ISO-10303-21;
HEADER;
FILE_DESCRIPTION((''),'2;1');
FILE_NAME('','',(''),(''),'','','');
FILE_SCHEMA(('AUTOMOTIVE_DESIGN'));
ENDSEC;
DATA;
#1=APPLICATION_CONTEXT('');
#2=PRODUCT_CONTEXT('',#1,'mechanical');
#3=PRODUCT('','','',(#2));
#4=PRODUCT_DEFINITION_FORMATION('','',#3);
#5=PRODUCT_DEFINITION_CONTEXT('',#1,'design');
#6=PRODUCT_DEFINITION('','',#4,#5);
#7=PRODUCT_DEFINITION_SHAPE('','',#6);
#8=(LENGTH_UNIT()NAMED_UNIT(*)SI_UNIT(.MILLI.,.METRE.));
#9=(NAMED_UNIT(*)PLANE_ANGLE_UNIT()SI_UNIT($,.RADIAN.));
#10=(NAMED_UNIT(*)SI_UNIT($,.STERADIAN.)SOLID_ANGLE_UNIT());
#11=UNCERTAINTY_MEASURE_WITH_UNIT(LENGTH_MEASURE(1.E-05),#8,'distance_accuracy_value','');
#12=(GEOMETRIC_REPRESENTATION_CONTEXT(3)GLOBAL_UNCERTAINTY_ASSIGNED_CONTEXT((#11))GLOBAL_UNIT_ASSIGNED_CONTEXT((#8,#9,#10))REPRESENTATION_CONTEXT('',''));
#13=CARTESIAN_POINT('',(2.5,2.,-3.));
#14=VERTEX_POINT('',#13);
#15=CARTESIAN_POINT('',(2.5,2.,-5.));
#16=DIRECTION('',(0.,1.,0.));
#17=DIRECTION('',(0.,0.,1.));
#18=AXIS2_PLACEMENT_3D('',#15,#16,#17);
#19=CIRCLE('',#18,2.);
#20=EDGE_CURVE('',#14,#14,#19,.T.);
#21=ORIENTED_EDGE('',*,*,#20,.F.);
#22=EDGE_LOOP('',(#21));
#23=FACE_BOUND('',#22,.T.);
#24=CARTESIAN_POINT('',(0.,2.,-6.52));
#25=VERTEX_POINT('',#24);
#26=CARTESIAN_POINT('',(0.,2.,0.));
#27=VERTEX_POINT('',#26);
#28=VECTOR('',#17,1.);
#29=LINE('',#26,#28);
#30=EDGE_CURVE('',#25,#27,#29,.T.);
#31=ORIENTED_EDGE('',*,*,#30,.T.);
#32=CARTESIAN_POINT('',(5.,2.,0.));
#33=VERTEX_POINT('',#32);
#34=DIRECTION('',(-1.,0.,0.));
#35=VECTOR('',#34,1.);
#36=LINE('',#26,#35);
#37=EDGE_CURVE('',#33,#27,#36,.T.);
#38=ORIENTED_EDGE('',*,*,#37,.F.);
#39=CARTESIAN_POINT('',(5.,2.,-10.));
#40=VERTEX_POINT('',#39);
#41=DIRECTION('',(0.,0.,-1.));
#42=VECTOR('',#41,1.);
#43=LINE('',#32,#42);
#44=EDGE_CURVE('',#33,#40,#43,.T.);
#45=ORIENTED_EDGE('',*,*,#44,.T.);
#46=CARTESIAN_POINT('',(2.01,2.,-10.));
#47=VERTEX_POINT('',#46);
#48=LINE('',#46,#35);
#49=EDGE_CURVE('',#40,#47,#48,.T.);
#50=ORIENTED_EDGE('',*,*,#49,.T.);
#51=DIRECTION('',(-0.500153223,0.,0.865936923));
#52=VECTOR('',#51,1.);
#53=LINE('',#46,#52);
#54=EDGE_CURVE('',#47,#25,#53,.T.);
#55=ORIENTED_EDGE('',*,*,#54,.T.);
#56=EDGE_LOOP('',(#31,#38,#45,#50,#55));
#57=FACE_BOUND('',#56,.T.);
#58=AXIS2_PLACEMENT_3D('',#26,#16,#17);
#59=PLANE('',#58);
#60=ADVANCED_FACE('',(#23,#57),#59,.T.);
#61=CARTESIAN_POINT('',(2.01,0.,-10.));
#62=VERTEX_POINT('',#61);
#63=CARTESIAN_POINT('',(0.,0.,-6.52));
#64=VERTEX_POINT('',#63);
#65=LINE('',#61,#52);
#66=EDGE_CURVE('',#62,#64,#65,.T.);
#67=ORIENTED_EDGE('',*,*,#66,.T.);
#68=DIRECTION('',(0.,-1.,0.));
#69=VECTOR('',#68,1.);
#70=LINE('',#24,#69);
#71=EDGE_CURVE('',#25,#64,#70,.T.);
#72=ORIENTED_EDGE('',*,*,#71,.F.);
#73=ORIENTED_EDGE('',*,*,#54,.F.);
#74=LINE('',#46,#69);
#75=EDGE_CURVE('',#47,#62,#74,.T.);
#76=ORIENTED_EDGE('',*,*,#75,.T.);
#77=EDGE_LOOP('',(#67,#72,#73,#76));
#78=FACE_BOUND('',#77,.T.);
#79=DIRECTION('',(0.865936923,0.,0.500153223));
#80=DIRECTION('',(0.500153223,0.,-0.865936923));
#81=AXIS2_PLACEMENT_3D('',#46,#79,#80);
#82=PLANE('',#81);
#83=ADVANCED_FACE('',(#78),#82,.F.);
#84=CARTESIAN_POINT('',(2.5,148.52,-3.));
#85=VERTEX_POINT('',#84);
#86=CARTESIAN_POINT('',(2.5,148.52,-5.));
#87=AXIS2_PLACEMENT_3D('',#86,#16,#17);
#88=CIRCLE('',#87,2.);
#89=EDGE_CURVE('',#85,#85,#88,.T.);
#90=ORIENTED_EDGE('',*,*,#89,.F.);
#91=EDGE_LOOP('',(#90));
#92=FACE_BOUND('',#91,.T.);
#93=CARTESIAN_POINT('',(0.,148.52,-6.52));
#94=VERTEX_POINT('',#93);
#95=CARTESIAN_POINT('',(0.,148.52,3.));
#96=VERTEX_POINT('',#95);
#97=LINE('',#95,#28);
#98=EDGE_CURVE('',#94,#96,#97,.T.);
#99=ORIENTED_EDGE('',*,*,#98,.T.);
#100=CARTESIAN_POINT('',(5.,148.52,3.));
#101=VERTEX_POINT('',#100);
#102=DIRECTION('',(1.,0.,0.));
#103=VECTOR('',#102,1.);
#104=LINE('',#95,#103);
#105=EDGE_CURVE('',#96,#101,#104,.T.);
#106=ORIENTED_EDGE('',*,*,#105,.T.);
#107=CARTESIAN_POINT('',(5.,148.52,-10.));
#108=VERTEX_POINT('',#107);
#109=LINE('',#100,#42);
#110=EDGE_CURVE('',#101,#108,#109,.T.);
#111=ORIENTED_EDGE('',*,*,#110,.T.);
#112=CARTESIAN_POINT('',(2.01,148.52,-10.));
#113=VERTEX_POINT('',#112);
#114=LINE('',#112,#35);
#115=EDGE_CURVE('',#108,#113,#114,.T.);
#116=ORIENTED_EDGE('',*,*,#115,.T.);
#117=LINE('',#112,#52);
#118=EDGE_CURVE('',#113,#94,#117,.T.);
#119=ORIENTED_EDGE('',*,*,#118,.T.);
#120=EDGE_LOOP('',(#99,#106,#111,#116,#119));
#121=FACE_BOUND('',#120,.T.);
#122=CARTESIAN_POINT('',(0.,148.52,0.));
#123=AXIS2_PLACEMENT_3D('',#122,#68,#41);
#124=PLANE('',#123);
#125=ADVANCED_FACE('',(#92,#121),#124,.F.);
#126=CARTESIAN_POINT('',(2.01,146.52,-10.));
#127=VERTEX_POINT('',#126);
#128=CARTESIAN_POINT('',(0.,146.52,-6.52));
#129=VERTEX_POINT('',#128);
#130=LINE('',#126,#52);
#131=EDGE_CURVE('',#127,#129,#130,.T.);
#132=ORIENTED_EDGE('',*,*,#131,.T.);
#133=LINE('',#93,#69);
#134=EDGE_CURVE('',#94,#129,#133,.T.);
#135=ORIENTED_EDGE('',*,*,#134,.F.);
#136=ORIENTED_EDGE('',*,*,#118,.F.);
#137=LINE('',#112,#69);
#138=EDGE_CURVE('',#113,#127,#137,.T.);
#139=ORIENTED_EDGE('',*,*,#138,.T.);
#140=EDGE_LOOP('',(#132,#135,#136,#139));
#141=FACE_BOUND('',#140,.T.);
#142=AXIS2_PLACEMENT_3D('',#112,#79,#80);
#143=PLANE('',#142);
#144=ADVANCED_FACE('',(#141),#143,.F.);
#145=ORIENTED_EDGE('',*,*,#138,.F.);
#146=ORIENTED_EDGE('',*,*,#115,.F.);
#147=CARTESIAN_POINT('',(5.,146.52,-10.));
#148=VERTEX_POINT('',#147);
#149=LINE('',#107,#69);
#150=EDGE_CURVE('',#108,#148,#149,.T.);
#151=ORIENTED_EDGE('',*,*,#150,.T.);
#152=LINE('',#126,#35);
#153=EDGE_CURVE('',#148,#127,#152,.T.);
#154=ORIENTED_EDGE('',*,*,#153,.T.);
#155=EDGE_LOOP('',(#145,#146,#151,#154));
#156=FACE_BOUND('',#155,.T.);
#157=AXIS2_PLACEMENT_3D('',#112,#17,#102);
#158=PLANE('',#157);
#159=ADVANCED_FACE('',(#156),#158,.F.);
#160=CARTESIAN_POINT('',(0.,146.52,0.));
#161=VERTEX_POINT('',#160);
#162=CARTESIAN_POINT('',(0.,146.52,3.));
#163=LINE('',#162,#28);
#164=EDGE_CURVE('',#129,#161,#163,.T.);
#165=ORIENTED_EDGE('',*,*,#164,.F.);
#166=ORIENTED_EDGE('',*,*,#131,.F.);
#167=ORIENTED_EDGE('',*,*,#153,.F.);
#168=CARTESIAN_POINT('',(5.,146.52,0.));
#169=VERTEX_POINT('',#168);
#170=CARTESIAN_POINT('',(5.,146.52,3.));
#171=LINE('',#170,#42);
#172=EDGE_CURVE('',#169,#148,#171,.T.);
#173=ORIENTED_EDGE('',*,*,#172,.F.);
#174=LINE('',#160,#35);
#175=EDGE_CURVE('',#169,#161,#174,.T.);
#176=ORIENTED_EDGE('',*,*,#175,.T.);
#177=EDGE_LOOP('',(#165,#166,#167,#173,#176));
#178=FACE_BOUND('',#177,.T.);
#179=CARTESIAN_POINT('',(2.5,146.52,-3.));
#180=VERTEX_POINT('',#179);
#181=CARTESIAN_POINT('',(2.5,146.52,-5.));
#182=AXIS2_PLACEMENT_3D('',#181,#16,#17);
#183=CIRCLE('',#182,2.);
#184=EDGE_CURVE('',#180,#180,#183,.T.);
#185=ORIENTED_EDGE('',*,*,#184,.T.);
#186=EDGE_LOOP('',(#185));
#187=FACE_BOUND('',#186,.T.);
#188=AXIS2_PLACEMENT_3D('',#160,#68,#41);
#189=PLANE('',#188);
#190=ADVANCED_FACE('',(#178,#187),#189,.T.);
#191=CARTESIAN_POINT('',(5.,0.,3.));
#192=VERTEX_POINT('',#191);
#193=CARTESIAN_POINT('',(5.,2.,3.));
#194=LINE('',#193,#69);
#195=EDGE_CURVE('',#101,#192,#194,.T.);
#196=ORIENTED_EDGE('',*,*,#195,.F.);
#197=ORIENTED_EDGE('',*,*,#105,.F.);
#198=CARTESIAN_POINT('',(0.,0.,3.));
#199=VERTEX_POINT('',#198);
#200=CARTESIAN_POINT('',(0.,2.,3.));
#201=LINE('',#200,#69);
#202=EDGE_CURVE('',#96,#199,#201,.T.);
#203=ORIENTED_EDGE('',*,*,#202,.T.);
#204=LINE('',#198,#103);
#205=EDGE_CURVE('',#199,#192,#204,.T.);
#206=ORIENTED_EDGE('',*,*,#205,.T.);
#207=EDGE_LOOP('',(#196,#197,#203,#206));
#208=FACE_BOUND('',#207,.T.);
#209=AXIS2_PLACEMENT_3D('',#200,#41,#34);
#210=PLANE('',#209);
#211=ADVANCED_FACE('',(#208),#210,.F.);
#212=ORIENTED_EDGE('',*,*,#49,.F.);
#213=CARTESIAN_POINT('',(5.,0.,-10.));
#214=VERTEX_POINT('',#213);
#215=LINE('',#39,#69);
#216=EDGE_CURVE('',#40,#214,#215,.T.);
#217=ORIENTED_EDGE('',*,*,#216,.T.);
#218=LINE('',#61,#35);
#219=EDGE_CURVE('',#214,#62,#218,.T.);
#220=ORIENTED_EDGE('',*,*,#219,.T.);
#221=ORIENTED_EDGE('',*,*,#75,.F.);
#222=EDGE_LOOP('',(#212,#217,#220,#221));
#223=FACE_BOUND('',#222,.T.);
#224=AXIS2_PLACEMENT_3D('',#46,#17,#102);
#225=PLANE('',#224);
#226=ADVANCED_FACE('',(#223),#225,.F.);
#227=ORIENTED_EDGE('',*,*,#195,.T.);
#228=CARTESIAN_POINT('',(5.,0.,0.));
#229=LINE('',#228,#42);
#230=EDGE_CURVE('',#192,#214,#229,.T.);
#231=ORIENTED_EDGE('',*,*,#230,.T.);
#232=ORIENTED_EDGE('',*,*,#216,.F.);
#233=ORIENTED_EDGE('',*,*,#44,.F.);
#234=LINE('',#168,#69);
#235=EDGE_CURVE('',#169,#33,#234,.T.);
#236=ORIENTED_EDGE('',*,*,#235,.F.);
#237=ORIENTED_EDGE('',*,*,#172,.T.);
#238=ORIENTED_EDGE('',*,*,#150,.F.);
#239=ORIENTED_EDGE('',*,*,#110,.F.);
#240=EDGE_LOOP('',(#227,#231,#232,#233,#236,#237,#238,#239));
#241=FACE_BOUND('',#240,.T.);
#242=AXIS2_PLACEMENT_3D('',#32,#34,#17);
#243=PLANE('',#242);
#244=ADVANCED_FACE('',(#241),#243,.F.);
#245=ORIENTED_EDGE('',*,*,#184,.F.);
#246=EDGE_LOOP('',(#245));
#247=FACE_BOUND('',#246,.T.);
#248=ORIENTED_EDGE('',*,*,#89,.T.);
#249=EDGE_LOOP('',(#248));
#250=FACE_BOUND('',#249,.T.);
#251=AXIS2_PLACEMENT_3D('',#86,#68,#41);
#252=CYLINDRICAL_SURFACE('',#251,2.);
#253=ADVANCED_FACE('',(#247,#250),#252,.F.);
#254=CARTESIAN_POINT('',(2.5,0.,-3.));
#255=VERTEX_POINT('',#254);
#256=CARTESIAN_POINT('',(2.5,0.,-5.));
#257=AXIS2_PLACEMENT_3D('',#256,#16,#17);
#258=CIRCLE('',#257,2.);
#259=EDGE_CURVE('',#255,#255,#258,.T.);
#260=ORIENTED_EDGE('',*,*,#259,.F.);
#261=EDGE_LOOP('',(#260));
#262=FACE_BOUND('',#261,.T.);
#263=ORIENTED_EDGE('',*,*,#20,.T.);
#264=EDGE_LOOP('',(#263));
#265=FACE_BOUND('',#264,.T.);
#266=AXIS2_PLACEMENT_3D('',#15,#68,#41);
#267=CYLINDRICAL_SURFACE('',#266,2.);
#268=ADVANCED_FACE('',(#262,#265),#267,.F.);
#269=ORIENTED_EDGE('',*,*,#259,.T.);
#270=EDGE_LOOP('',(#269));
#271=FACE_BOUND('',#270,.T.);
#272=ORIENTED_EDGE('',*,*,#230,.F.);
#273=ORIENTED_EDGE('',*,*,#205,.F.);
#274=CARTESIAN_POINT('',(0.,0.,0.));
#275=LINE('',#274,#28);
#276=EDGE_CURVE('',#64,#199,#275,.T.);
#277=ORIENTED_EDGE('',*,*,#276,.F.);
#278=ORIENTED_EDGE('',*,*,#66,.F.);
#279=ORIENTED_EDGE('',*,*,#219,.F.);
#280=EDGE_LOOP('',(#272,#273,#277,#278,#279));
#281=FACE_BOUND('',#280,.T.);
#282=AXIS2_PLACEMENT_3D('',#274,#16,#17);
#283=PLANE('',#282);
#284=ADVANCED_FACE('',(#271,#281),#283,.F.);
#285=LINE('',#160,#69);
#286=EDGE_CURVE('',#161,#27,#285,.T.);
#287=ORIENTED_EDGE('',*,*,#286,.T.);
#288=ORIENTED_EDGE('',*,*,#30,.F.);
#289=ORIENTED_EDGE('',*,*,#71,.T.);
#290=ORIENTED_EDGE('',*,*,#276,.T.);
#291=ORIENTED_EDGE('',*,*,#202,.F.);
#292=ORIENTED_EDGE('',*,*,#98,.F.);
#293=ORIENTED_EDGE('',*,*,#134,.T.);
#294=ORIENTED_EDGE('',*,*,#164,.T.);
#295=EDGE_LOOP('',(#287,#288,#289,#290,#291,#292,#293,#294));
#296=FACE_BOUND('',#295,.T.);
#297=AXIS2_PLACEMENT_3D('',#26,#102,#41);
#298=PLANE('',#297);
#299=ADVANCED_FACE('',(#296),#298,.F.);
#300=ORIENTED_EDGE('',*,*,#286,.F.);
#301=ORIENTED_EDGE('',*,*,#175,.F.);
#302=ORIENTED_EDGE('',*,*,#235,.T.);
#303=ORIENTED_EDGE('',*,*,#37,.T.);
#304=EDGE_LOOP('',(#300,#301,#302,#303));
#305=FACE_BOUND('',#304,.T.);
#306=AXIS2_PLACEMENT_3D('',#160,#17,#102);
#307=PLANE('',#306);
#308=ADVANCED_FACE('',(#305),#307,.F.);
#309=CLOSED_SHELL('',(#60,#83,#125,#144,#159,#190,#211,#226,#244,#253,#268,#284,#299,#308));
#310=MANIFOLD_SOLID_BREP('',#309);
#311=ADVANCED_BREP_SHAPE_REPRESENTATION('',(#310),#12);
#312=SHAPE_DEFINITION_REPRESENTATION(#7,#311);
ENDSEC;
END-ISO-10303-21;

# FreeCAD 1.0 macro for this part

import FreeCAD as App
import Part
import Sketcher

V = App.Vector

doc = App.newDocument("Part")
params = doc.addObject("Spreadsheet::Sheet", "Params")
for row, (alias, value) in enumerate([
    ("sketch1_diameter", "4 mm"),
    ("sketch1_width", "5 mm"),
    ("sketch1_height", "13 mm"),
    ("sketch1_width2", "2.99 mm"),
    ("sketch1_height2", "9.52 mm"),
    ("pad1_length", "2 mm"),
    ("sketch2_width", "5 mm"),
    ("sketch2_height", "3 mm"),
    ("pad2_length", "144.52 mm"),
    ("sketch3_diameter", "4 mm"),
    ("sketch3_width", "5 mm"),
    ("sketch3_height", "13 mm"),
    ("sketch3_width2", "2.99 mm"),
    ("sketch3_height2", "9.52 mm"),
    ("pad3_length", "2 mm"),
], start=1):
    params.set(f"A{row}", alias)
    params.set(f"B{row}", "=" + value)
    params.setAlias(f"B{row}", alias)

body = doc.addObject("PartDesign::Body", "Body")

# Sketch on XZ plane
sketch1 = doc.addObject("Sketcher::SketchObject", "Sketch")
body.addObject(sketch1)
sketch1.AttachmentSupport = (doc.XZ_Plane, [""])
sketch1.MapMode = "FlatFace"
sketch1.addGeometry(Part.LineSegment(V(2, -10, 0), V(0, -6.5, 0)), False)
sketch1.addGeometry(Part.LineSegment(V(0, -6.5, 0), V(0, 3, 0)), False)
sketch1.addGeometry(Part.LineSegment(V(0, 3, 0), V(5, 3, 0)), False)
sketch1.addGeometry(Part.LineSegment(V(5, 3, 0), V(5, -10, 0)), False)
sketch1.addGeometry(Part.LineSegment(V(5, -10, 0), V(2, -10, 0)), False)
sketch1.addGeometry(Part.Circle(V(2.5, -5, 0), V(0, 0, 1), 2), False)
sketch1.addConstraint(Sketcher.Constraint("Coincident", 0, 2, 1, 1))
sketch1.addConstraint(Sketcher.Constraint("Coincident", 1, 2, 2, 1))
sketch1.addConstraint(Sketcher.Constraint("Coincident", 2, 2, 3, 1))
sketch1.addConstraint(Sketcher.Constraint("Coincident", 3, 2, 4, 1))
sketch1.addConstraint(Sketcher.Constraint("Coincident", 4, 2, 0, 1))
sketch1.addConstraint(Sketcher.Constraint("Vertical", 1))
sketch1.addConstraint(Sketcher.Constraint("Horizontal", 2))
sketch1.addConstraint(Sketcher.Constraint("Vertical", 3))
sketch1.addConstraint(Sketcher.Constraint("Horizontal", 4))
sketch1.addConstraint(Sketcher.Constraint("PointOnObject", 0, 2, -2))
sketch1.addConstraint(Sketcher.Constraint("Diameter", 5, 4.0))
sketch1.addConstraint(Sketcher.Constraint("DistanceX", 2, 1, 2, 2, 5.0))
sketch1.addConstraint(Sketcher.Constraint("DistanceY", 3, 2, 3, 1, 13.0))
sketch1.addConstraint(Sketcher.Constraint("DistanceY", 5, 3, -1, 1, 5.0))
sketch1.addConstraint(Sketcher.Constraint("DistanceY", -1, 1, 1, 2, 3.0))
sketch1.addConstraint(Sketcher.Constraint("DistanceX", 4, 2, 4, 1, 2.99))
sketch1.addConstraint(Sketcher.Constraint("DistanceY", 1, 1, 1, 2, 9.52))
sketch1.addConstraint(Sketcher.Constraint("DistanceX", -1, 1, 5, 3, 2.5))
sketch1.setExpression("Constraints[10]", "Params.sketch1_diameter")
sketch1.setExpression("Constraints[11]", "Params.sketch1_width")
sketch1.setExpression("Constraints[12]", "Params.sketch1_height")
sketch1.setExpression("Constraints[15]", "Params.sketch1_width2")
sketch1.setExpression("Constraints[16]", "Params.sketch1_height2")
pad1 = doc.addObject("PartDesign::Pad", "Pad")
body.addObject(pad1)
pad1.Profile = sketch1
pad1.setExpression("Length", "Params.pad1_length")
pad1.Reversed = True

# Sketch on XZ plane
sketch2 = doc.addObject("Sketcher::SketchObject", "Sketch001")
body.addObject(sketch2)
sketch2.AttachmentSupport = (doc.XZ_Plane, [""])
sketch2.MapMode = "FlatFace"
sketch2.AttachmentOffset = App.Placement(V(0, 0, -2), App.Rotation())
sketch2.addGeometry(Part.LineSegment(V(0, 0, 0), V(0, 3, 0)), False)
sketch2.addGeometry(Part.LineSegment(V(0, 3, 0), V(5, 3, 0)), False)
sketch2.addGeometry(Part.LineSegment(V(5, 3, 0), V(5, 0, 0)), False)
sketch2.addGeometry(Part.LineSegment(V(5, 0, 0), V(0, 0, 0)), False)
sketch2.addConstraint(Sketcher.Constraint("Coincident", 0, 2, 1, 1))
sketch2.addConstraint(Sketcher.Constraint("Coincident", 1, 2, 2, 1))
sketch2.addConstraint(Sketcher.Constraint("Coincident", 2, 2, 3, 1))
sketch2.addConstraint(Sketcher.Constraint("Coincident", 3, 2, 0, 1))
sketch2.addConstraint(Sketcher.Constraint("Vertical", 0))
sketch2.addConstraint(Sketcher.Constraint("Horizontal", 1))
sketch2.addConstraint(Sketcher.Constraint("Vertical", 2))
sketch2.addConstraint(Sketcher.Constraint("Horizontal", 3))
sketch2.addConstraint(Sketcher.Constraint("Coincident", 3, 2, -1, 1))
sketch2.addConstraint(Sketcher.Constraint("DistanceX", 1, 1, 1, 2, 5.0))
sketch2.addConstraint(Sketcher.Constraint("DistanceY", 0, 1, 0, 2, 3.0))
sketch2.setExpression("Constraints[9]", "Params.sketch2_width")
sketch2.setExpression("Constraints[10]", "Params.sketch2_height")
pad2 = doc.addObject("PartDesign::Pad", "Pad001")
body.addObject(pad2)
pad2.Profile = sketch2
pad2.setExpression("Length", "Params.pad2_length")
pad2.Reversed = True

# Sketch on XZ plane
sketch3 = doc.addObject("Sketcher::SketchObject", "Sketch002")
body.addObject(sketch3)
sketch3.AttachmentSupport = (doc.XZ_Plane, [""])
sketch3.MapMode = "FlatFace"
sketch3.AttachmentOffset = App.Placement(V(0, 0, -146.52), App.Rotation())
sketch3.addGeometry(Part.LineSegment(V(2, -10, 0), V(0, -6.5, 0)), False)
sketch3.addGeometry(Part.LineSegment(V(0, -6.5, 0), V(0, 3, 0)), False)
sketch3.addGeometry(Part.LineSegment(V(0, 3, 0), V(5, 3, 0)), False)
sketch3.addGeometry(Part.LineSegment(V(5, 3, 0), V(5, -10, 0)), False)
sketch3.addGeometry(Part.LineSegment(V(5, -10, 0), V(2, -10, 0)), False)
sketch3.addGeometry(Part.Circle(V(2.5, -5, 0), V(0, 0, 1), 2), False)
sketch3.addConstraint(Sketcher.Constraint("Coincident", 0, 2, 1, 1))
sketch3.addConstraint(Sketcher.Constraint("Coincident", 1, 2, 2, 1))
sketch3.addConstraint(Sketcher.Constraint("Coincident", 2, 2, 3, 1))
sketch3.addConstraint(Sketcher.Constraint("Coincident", 3, 2, 4, 1))
sketch3.addConstraint(Sketcher.Constraint("Coincident", 4, 2, 0, 1))
sketch3.addConstraint(Sketcher.Constraint("Vertical", 1))
sketch3.addConstraint(Sketcher.Constraint("Horizontal", 2))
sketch3.addConstraint(Sketcher.Constraint("Vertical", 3))
sketch3.addConstraint(Sketcher.Constraint("Horizontal", 4))
sketch3.addConstraint(Sketcher.Constraint("PointOnObject", 0, 2, -2))
sketch3.addConstraint(Sketcher.Constraint("Diameter", 5, 4.0))
sketch3.addConstraint(Sketcher.Constraint("DistanceX", 2, 1, 2, 2, 5.0))
sketch3.addConstraint(Sketcher.Constraint("DistanceY", 3, 2, 3, 1, 13.0))
sketch3.addConstraint(Sketcher.Constraint("DistanceY", 5, 3, -1, 1, 5.0))
sketch3.addConstraint(Sketcher.Constraint("DistanceY", -1, 1, 1, 2, 3.0))
sketch3.addConstraint(Sketcher.Constraint("DistanceX", 4, 2, 4, 1, 2.99))
sketch3.addConstraint(Sketcher.Constraint("DistanceY", 1, 1, 1, 2, 9.52))
sketch3.addConstraint(Sketcher.Constraint("DistanceX", -1, 1, 5, 3, 2.5))
sketch3.setExpression("Constraints[10]", "Params.sketch3_diameter")
sketch3.setExpression("Constraints[11]", "Params.sketch3_width")
sketch3.setExpression("Constraints[12]", "Params.sketch3_height")
sketch3.setExpression("Constraints[15]", "Params.sketch3_width2")
sketch3.setExpression("Constraints[16]", "Params.sketch3_height2")
pad3 = doc.addObject("PartDesign::Pad", "Pad002")
body.addObject(pad3)
pad3.Profile = sketch3
pad3.setExpression("Length", "Params.pad3_length")
pad3.Reversed = True

doc.recompute()
